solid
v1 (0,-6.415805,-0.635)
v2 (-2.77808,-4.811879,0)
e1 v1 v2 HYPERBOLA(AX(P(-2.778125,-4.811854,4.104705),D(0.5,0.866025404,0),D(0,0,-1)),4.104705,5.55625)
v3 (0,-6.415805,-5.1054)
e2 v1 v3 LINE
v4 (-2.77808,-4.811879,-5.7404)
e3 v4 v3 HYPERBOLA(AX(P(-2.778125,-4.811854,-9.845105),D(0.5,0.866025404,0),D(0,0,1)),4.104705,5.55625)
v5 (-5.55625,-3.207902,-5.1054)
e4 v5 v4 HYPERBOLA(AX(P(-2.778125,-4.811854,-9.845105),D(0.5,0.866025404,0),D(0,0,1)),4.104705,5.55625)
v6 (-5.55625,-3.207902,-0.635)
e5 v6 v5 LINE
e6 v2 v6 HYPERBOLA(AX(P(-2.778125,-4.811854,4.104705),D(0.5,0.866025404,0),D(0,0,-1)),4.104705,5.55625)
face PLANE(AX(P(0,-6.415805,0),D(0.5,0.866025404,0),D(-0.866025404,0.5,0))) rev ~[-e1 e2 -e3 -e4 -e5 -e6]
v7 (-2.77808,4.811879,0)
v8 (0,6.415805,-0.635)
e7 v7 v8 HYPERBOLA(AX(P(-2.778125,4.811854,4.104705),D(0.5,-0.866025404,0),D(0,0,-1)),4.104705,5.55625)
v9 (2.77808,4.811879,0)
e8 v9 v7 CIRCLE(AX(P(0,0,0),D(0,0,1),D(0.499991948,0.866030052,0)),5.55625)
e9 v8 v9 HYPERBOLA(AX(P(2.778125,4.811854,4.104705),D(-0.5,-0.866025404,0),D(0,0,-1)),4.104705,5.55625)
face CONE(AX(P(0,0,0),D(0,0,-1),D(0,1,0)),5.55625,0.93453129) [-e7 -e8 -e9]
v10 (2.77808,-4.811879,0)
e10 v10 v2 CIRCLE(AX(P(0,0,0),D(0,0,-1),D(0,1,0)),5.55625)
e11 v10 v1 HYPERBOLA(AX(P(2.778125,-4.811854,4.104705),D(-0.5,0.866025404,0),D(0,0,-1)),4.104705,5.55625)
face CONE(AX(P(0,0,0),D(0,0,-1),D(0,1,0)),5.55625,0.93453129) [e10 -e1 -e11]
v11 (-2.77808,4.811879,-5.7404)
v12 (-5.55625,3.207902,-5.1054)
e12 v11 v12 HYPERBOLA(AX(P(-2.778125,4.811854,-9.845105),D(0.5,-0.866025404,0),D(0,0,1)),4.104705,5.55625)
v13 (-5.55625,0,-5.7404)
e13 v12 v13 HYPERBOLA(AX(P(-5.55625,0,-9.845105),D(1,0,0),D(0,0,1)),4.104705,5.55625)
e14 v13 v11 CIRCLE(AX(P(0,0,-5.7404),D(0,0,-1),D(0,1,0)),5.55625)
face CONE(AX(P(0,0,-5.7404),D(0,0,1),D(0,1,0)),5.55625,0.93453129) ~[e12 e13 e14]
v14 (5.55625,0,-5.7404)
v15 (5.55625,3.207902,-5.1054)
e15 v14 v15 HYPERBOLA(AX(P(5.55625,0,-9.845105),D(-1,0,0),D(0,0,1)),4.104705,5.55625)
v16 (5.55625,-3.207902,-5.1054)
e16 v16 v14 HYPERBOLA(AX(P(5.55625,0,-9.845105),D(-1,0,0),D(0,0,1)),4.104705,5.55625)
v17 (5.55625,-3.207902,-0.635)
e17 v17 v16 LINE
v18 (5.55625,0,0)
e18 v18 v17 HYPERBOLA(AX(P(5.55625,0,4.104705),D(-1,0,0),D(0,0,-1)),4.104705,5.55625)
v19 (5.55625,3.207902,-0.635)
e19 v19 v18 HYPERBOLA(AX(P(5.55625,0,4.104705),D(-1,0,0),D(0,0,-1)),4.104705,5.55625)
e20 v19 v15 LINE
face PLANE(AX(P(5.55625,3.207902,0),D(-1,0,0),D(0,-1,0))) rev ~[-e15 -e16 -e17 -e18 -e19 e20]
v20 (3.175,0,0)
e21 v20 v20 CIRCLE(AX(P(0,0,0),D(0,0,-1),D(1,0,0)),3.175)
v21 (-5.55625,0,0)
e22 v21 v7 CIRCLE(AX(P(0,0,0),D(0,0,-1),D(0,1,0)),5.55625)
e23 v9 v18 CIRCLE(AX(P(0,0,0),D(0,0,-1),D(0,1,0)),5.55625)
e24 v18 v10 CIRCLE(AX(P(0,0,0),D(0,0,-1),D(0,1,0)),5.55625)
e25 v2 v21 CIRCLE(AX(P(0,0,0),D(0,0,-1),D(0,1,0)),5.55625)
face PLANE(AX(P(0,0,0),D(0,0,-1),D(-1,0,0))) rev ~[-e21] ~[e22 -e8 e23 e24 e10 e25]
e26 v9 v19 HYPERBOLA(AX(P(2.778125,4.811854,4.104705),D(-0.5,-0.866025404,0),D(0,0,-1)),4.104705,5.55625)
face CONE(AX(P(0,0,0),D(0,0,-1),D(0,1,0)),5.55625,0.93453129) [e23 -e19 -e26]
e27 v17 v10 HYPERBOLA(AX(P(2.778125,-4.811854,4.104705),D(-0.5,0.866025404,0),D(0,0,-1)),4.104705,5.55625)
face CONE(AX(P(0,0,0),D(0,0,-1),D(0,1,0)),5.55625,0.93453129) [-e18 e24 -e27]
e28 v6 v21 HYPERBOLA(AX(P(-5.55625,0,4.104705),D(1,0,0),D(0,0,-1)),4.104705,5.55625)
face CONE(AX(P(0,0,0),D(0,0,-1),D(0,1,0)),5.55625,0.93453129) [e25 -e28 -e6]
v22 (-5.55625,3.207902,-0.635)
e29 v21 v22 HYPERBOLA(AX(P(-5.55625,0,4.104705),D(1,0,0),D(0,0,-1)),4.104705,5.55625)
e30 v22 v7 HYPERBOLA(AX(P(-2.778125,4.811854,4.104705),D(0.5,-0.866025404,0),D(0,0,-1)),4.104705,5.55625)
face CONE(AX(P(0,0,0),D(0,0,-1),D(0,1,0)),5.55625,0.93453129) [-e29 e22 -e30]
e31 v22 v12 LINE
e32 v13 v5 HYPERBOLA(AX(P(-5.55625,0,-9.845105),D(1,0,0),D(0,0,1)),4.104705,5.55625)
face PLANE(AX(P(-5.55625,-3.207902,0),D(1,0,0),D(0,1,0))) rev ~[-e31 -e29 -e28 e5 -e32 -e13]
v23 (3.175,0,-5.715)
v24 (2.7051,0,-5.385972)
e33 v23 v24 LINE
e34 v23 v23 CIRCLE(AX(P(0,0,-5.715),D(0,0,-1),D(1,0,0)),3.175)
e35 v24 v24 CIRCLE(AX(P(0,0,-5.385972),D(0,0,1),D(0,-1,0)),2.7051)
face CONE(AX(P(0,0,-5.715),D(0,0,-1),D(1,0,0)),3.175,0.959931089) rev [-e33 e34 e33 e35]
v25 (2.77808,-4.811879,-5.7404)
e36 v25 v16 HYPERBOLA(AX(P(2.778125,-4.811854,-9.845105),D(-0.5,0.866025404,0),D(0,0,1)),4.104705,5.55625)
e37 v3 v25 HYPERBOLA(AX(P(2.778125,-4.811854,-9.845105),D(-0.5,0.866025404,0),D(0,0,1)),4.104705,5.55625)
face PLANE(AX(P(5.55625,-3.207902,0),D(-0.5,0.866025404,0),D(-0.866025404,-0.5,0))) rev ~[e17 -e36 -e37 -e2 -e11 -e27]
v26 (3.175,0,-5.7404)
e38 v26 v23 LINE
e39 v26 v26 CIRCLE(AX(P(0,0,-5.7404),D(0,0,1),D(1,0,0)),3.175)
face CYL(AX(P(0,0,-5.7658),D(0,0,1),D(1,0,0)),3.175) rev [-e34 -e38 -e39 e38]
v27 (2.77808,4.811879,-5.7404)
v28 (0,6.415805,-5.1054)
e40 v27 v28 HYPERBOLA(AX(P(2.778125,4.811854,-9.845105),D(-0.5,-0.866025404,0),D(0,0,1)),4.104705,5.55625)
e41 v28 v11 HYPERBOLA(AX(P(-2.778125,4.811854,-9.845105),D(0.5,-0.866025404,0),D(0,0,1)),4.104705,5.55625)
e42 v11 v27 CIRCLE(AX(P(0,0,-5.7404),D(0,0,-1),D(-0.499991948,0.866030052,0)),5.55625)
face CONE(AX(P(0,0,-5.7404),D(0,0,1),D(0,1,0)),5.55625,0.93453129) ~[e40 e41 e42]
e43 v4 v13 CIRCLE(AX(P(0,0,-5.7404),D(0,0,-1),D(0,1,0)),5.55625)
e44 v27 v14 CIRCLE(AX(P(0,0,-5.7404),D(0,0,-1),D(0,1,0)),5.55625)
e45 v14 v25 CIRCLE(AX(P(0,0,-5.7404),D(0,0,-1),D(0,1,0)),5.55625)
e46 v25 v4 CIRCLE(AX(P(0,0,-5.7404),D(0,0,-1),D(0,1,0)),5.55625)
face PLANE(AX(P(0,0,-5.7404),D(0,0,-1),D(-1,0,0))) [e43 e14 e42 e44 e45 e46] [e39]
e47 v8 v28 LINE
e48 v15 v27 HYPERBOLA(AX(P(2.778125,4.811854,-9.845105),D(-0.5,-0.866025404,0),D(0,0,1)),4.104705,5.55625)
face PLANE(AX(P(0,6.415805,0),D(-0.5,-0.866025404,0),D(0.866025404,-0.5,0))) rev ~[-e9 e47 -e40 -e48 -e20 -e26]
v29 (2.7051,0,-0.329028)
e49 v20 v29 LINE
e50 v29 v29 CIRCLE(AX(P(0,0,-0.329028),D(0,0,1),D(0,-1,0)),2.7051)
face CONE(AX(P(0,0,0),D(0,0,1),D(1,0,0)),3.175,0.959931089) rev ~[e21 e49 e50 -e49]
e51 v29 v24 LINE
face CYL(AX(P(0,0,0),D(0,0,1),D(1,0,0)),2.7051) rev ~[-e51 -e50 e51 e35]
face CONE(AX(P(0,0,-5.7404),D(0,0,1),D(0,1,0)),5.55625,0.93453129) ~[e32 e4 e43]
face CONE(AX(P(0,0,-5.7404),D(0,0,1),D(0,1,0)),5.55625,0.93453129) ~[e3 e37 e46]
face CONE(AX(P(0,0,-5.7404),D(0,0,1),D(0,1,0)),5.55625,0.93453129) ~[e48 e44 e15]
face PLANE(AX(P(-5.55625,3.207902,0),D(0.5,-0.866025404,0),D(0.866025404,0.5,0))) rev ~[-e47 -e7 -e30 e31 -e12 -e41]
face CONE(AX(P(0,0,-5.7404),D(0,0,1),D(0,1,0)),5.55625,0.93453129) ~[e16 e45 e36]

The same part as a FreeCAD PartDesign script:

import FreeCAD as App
import Part
import Sketcher
Q = App.Units.Quantity


def add_polygon(sketch, points):
    """Adds a closed chain of lines whose ends are joined by coincident constraints."""
    first, n = sketch.GeometryCount, len(points)
    for a, b in zip(points, points[1:] + points[:1]):
        sketch.addGeometry(Part.LineSegment(App.Vector(*a, 0), App.Vector(*b, 0)), False)
    for i in range(n):
        sketch.addConstraint(Sketcher.Constraint("Coincident", first + i, 2, first + (i + 1) % n, 1))

doc = App.newDocument("Part")
body = doc.addObject("PartDesign::Body", "Body")

sketch1 = body.newObject("Sketcher::SketchObject", "Sketch")
sketch1.AttachmentSupport = (doc.getObject("XY_Plane"), [""])
sketch1.MapMode = "FlatFace"
add_polygon(sketch1, [(5.6, -3.2), (5.6, 3.2), (0, 6.4), (-5.6, 3.2), (-5.6, -3.2), (0, -6.4)])
sketch1.addGeometry(Part.Circle(App.Vector(0, 0, 0), App.Vector(0, 0, 1), 2.7), False)
sketch1.addConstraint(Sketcher.Constraint("Vertical", 0))
sketch1.addConstraint(Sketcher.Constraint("Vertical", 3))
sketch1.addConstraint(Sketcher.Constraint("Coincident", 6, 3, -1, 1))
sketch1.addConstraint(Sketcher.Constraint("Symmetric", 0, 2, 3, 2, -1, 1))
sketch1.addConstraint(Sketcher.Constraint("Symmetric", 1, 2, 4, 2, -1, 1))
sketch1.addConstraint(Sketcher.Constraint("PointOnObject", 1, 2, -2))
sketch1.addConstraint(Sketcher.Constraint("Parallel", 2, 5))
sketch1.addConstraint(Sketcher.Constraint("Horizontal", 0, 2, 2, 2))
sketch1.addConstraint(Sketcher.Constraint("Diameter", 6, Q("0.213 in")))
sketch1.addConstraint(Sketcher.Constraint("Angle", 1, Q("150 deg")))
sketch1.addConstraint(Sketcher.Constraint("DistanceX", -1, 1, 0, 2, Q("0.21875 in")))
sketch1.addConstraint(Sketcher.Constraint("DistanceY", 0, 1, 0, 2, 6.415805))
pad1 = body.newObject("PartDesign::Pad", "Pad")
pad1.Profile = sketch1
pad1.Length = Q("0.226 in")
pad1.Reversed = True

sketch2 = body.newObject("Sketcher::SketchObject", "Sketch001")
sketch2.AttachmentSupport = (doc.getObject("YZ_Plane"), [""])
sketch2.MapMode = "FlatFace"
add_polygon(sketch2, [(6.4, -5.1), (5.6, -5.7), (5.6, -18.4), (19.1, -18.4), (19.1, -5.1)])
add_polygon(sketch2, [(19.1, -0.6), (19.1, 12.7), (5.6, 12.7), (5.6, 0), (6.4, -0.6)])
sketch2.addConstraint(Sketcher.Constraint("Vertical", 1))
sketch2.addConstraint(Sketcher.Constraint("Horizontal", 2))
sketch2.addConstraint(Sketcher.Constraint("Vertical", 3))
sketch2.addConstraint(Sketcher.Constraint("Horizontal", 4))
sketch2.addConstraint(Sketcher.Constraint("Vertical", 5))
sketch2.addConstraint(Sketcher.Constraint("Horizontal", 6))
sketch2.addConstraint(Sketcher.Constraint("Vertical", 7))
sketch2.addConstraint(Sketcher.Constraint("Horizontal", 9))
sketch2.addConstraint(Sketcher.Constraint("PointOnObject", 7, 2, -1))
sketch2.addConstraint(Sketcher.Constraint("Vertical", 3, 2, 5, 2))
sketch2.addConstraint(Sketcher.Constraint("Vertical", 1, 2, 6, 2))
sketch2.addConstraint(Sketcher.Constraint("Vertical", 4, 2, 8, 2))
sketch2.addConstraint(Sketcher.Constraint("Equal", 9, 1))
sketch2.addConstraint(Sketcher.Constraint("Equal", 3, 5))
sketch2.addConstraint(Sketcher.Constraint("Equal", 1, 7))
sketch2.addConstraint(Sketcher.Constraint("DistanceX", 4, 2, 4, 1, Q("0.5 in")))
sketch2.addConstraint(Sketcher.Constraint("DistanceY", 3, 1, 3, 2, Q("0.525 in")))
sketch2.addConstraint(Sketcher.Constraint("DistanceX", -1, 1, 0, 2, Q("0.21875 in")))
sketch2.addConstraint(Sketcher.Constraint("DistanceY", 0, 2, -1, 1, Q("0.226 in")))
sketch2.addConstraint(Sketcher.Constraint("Distance", 0, 1.068672))
groove = body.newObject("PartDesign::Groove", "Groove")
groove.Profile = sketch2
groove.ReferenceAxis = (sketch2, ["V_Axis"])
groove.Angle = 360

sketch3 = body.newObject("Sketcher::SketchObject", "Sketch002")
sketch3.AttachmentSupport = (doc.getObject("YZ_Plane"), [""])
sketch3.MapMode = "FlatFace"
add_polygon(sketch3, [(3.17, -5.71), (2.66, -5.35), (2.66, -5.77), (3.17, -5.77)])
add_polygon(sketch3, [(3.17, 0), (3.17, 0.05), (2.66, 0.05), (2.66, -0.36)])
sketch3.addConstraint(Sketcher.Constraint("Vertical", 1))
sketch3.addConstraint(Sketcher.Constraint("Horizontal", 2))
sketch3.addConstraint(Sketcher.Constraint("Vertical", 3))
sketch3.addConstraint(Sketcher.Constraint("Vertical", 4))
sketch3.addConstraint(Sketcher.Constraint("Horizontal", 5))
sketch3.addConstraint(Sketcher.Constraint("Vertical", 6))
sketch3.addConstraint(Sketcher.Constraint("PointOnObject", 7, 2, -1))
sketch3.addConstraint(Sketcher.Constraint("Vertical", 3, 2, 4, 2))
sketch3.addConstraint(Sketcher.Constraint("Vertical", 1, 2, 5, 2))
sketch3.addConstraint(Sketcher.Constraint("Equal", 3, 4))
sketch3.addConstraint(Sketcher.Constraint("Equal", 1, 6))
sketch3.addConstraint(Sketcher.Constraint("Angle", 0, Q("145 deg")))
sketch3.addConstraint(Sketcher.Constraint("DistanceY", 3, 1, 3, 2, Q("0.002 in")))
sketch3.addConstraint(Sketcher.Constraint("DistanceY", 1, 2, -1, 1, Q("0.227 in")))
sketch3.addConstraint(Sketcher.Constraint("DistanceX", -1, 1, 2, 2, Q("0.125 in")))
sketch3.addConstraint(Sketcher.Constraint("DistanceX", 2, 1, 2, 2, 0.51689))
groove2 = body.newObject("PartDesign::Groove", "Groove001")
groove2.Profile = sketch3
groove2.ReferenceAxis = (sketch3, ["V_Axis"])
groove2.Angle = 360

doc.recompute()
